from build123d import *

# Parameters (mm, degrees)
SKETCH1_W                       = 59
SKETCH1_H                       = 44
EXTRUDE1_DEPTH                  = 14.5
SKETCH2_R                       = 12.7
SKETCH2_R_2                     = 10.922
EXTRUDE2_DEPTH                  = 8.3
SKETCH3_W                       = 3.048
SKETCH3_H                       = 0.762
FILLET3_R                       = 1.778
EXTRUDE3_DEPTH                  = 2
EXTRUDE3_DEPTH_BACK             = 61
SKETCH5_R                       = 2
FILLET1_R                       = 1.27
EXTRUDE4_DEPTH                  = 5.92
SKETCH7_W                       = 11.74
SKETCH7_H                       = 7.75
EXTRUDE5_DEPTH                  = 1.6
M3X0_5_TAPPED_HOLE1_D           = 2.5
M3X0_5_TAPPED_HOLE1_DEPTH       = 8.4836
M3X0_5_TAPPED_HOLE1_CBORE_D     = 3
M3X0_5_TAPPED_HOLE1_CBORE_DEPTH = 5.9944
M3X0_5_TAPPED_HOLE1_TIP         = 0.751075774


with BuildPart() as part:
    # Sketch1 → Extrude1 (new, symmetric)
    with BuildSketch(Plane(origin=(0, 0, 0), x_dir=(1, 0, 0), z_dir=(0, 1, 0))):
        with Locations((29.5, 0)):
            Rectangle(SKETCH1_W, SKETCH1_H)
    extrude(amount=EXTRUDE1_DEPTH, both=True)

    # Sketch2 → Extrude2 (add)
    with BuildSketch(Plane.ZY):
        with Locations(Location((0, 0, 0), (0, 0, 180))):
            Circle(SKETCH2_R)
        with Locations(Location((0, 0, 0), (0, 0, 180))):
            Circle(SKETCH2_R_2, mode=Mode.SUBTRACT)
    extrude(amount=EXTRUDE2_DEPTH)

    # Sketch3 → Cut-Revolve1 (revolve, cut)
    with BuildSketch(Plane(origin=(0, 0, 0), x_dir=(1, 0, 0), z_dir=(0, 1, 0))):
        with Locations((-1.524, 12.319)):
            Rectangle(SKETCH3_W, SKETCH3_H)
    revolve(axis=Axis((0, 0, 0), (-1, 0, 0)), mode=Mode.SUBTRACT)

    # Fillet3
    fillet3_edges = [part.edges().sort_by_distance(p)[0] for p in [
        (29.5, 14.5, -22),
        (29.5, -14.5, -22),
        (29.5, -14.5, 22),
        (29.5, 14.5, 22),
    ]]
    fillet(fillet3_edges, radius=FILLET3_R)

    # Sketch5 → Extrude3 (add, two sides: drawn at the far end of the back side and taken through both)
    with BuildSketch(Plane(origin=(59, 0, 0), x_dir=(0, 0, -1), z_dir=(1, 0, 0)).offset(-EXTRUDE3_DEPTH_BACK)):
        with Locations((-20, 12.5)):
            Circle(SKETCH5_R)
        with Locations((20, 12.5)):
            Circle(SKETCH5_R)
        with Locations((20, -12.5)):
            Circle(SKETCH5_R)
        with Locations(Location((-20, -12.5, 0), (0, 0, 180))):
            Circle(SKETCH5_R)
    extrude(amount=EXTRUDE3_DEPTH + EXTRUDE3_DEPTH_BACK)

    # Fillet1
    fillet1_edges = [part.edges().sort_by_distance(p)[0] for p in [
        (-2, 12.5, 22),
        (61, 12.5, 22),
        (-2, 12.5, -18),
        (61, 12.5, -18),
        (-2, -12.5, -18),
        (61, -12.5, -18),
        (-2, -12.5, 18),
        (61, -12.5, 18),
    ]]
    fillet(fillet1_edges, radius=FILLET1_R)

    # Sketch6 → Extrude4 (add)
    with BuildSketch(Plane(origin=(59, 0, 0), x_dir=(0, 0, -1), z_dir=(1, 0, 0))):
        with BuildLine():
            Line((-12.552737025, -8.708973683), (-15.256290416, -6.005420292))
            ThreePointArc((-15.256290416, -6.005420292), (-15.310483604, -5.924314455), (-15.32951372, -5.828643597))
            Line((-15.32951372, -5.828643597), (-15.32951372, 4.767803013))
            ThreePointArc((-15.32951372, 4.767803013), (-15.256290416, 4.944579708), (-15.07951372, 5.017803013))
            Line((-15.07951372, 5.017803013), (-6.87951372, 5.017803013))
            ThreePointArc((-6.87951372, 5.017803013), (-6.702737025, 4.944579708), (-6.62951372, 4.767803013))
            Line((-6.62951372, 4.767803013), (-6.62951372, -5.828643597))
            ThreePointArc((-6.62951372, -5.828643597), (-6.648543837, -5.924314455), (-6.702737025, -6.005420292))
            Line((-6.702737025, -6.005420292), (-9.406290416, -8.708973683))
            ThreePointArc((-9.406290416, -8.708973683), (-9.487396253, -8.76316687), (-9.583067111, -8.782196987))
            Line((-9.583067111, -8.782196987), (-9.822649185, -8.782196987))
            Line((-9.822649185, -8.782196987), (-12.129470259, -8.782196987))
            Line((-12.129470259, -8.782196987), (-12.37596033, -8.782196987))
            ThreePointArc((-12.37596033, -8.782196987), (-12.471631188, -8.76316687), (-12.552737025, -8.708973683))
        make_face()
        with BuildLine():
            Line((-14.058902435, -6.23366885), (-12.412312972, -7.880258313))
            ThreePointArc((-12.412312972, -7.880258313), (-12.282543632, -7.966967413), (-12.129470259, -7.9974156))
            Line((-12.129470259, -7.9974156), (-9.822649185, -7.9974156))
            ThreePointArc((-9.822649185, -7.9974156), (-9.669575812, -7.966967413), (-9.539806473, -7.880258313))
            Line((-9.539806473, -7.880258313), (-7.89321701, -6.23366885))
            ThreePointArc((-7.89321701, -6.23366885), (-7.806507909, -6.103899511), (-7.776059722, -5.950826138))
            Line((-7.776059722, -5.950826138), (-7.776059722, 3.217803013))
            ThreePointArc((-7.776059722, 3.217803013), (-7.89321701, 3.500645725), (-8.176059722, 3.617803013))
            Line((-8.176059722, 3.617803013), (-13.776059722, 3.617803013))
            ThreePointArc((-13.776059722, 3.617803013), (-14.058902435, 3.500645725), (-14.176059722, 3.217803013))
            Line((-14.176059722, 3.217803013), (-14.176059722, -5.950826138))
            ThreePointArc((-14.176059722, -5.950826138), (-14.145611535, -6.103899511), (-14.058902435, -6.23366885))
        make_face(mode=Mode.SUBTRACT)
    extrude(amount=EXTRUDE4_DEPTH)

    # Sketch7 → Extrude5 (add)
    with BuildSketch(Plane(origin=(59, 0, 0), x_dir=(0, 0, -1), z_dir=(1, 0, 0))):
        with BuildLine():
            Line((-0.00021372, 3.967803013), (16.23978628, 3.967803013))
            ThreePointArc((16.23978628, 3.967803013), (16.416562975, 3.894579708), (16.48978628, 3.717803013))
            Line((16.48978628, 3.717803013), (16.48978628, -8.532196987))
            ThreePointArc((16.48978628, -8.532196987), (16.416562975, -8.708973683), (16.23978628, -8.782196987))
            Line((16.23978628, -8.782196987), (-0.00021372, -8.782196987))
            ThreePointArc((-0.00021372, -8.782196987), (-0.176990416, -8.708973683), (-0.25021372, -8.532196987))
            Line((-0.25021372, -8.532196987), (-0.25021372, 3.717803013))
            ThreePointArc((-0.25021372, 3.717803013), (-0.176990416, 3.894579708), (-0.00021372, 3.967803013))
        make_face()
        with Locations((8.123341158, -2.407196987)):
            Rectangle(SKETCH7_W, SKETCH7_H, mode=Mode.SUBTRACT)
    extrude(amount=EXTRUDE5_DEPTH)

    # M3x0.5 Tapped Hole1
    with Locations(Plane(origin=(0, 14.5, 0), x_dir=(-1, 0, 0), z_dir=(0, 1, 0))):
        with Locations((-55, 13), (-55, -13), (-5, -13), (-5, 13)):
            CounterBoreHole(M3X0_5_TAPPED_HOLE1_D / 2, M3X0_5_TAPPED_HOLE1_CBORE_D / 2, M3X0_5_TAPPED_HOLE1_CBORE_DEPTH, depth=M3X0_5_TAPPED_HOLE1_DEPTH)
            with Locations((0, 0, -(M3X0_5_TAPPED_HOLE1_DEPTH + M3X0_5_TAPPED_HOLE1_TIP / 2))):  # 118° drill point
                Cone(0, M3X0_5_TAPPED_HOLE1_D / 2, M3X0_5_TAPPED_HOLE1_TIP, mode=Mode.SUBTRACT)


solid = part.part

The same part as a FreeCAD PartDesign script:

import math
import FreeCAD as App
import Part
import Sketcher

V = App.Vector
Q = App.Units.Quantity


def edges_at(feature, points):
    """Names of the edges that pass closest to the given points."""
    edges = feature.Shape.Edges
    near = lambda p: min(range(len(edges)), key=lambda i: edges[i].distToShape(Part.Vertex(*p))[0])
    return sorted({f"Edge{near(p) + 1}" for p in points})

doc = App.newDocument("Part")
body = doc.addObject("PartDesign::Body", "Body")

# Sketch on XZ plane
sketch1 = doc.addObject("Sketcher::SketchObject", "Sketch")
body.addObject(sketch1)
sketch1.AttachmentSupport = (doc.XZ_Plane, [""])
sketch1.MapMode = "FlatFace"
sketch1.addGeometry([
    Part.LineSegment(V(0, -22, 0), V(0, 22, 0)),
    Part.LineSegment(V(0, 22, 0), V(59, 22, 0)),
    Part.LineSegment(V(59, 22, 0), V(59, -22, 0)),
    Part.LineSegment(V(59, -22, 0), V(0, -22, 0)),
], False)
sketch1.addConstraint([
    Sketcher.Constraint("Coincident", 0, 2, 1, 1),
    Sketcher.Constraint("Coincident", 1, 2, 2, 1),
    Sketcher.Constraint("Coincident", 2, 2, 3, 1),
    Sketcher.Constraint("Coincident", 3, 2, 0, 1),
    Sketcher.Constraint("Vertical", 0),
    Sketcher.Constraint("Horizontal", 1),
    Sketcher.Constraint("Vertical", 2),
    Sketcher.Constraint("Horizontal", 3),
    Sketcher.Constraint("Symmetric", 0, 2, 3, 2, -1, 1),
    Sketcher.Constraint("DistanceX", 1, 1, 1, 2, Q("59 mm")),
    Sketcher.Constraint("DistanceY", 0, 1, 0, 2, Q("44 mm")),
])
pad1 = doc.addObject("PartDesign::Pad", "Pad")
body.addObject(pad1)
pad1.Profile = sketch1
pad1.Length = 29
pad1.Midplane = True

# Sketch on YZ plane
sketch2 = doc.addObject("Sketcher::SketchObject", "Sketch001")
body.addObject(sketch2)
sketch2.AttachmentSupport = (doc.YZ_Plane, [""])
sketch2.MapMode = "FlatFace"
sketch2.addGeometry([
    Part.Circle(V(0, 0, 0), V(0, 0, 1), 12.7),
    Part.Circle(V(0, 0, 0), V(0, 0, 1), 10.922),
], False)
sketch2.addConstraint([
    Sketcher.Constraint("Coincident", 0, 3, -1, 1),
    Sketcher.Constraint("Coincident", 1, 3, -1, 1),
    Sketcher.Constraint("Diameter", 0, Q("25.4 mm")),
    Sketcher.Constraint("Diameter", 1, Q("21.844 mm")),
])
pad2 = doc.addObject("PartDesign::Pad", "Pad001")
body.addObject(pad2)
pad2.Profile = sketch2
pad2.Length = 8.3
pad2.Reversed = True

# Sketch on XZ plane
sketch3 = doc.addObject("Sketcher::SketchObject", "Sketch002")
body.addObject(sketch3)
sketch3.AttachmentSupport = (doc.XZ_Plane, [""])
sketch3.MapMode = "FlatFace"
sketch3.addGeometry([
    Part.LineSegment(V(-3.048, -12.7, 0), V(-3.048, -11.938, 0)),
    Part.LineSegment(V(-3.048, -11.938, 0), V(0, -11.938, 0)),
    Part.LineSegment(V(0, -11.938, 0), V(0, -12.7, 0)),
    Part.LineSegment(V(0, -12.7, 0), V(-3.048, -12.7, 0)),
], False)
sketch3.addConstraint([
    Sketcher.Constraint("Coincident", 0, 2, 1, 1),
    Sketcher.Constraint("Coincident", 1, 2, 2, 1),
    Sketcher.Constraint("Coincident", 2, 2, 3, 1),
    Sketcher.Constraint("Coincident", 3, 2, 0, 1),
    Sketcher.Constraint("Vertical", 0),
    Sketcher.Constraint("Horizontal", 1),
    Sketcher.Constraint("Vertical", 2),
    Sketcher.Constraint("Horizontal", 3),
    Sketcher.Constraint("PointOnObject", 1, 2, -2),
    Sketcher.Constraint("DistanceY", 2, 2, -1, 1, Q("12.7 mm")),
    Sketcher.Constraint("DistanceX", 1, 1, 1, 2, Q("3.048 mm")),
    Sketcher.Constraint("DistanceY", 0, 1, 0, 2, Q("0.762 mm")),
])
groove = doc.addObject("PartDesign::Groove", "Groove")
body.addObject(groove)
groove.Profile = sketch3
groove.ReferenceAxis = (sketch3, ["H_Axis"])
groove.Angle = 360
doc.recompute()

fillet = doc.addObject("PartDesign::Fillet", "Fillet")
body.addObject(fillet)
fillet.Base = (groove, edges_at(groove, [
    (29.5, 14.5, -22),
    (29.5, -14.5, -22),
    (29.5, -14.5, 22),
    (29.5, 14.5, 22),
]))
fillet.Radius = 1.778

# Sketch on YZ plane
sketch4 = doc.addObject("Sketcher::SketchObject", "Sketch003")
body.addObject(sketch4)
sketch4.AttachmentSupport = (doc.YZ_Plane, [""])
sketch4.MapMode = "FlatFace"
sketch4.AttachmentOffset = App.Placement(V(0, 0, 59), App.Rotation())
sketch4.addGeometry([
    Part.Circle(V(12.5, 20, 0), V(0, 0, 1), 2),
    Part.Circle(V(12.5, -20, 0), V(0, 0, 1), 2),
    Part.Circle(V(-12.5, -20, 0), V(0, 0, 1), 2),
    Part.Circle(V(-12.5, 20, 0), V(0, 0, 1), 2),
], False)
sketch4.addConstraint([
    Sketcher.Constraint("Equal", 0, 1),
    Sketcher.Constraint("Equal", 1, 2),
    Sketcher.Constraint("Equal", 2, 3),
    Sketcher.Constraint("Symmetric", 0, 3, 2, 3, -1, 1),
    Sketcher.Constraint("Symmetric", 1, 3, 3, 3, -1, 1),
    Sketcher.Constraint("Symmetric", 1, 3, 2, 3, -2),
    Sketcher.Constraint("Diameter", 0, Q("4 mm")),
    Sketcher.Constraint("DistanceY", -1, 1, 0, 3, Q("20 mm")),
    Sketcher.Constraint("DistanceX", 2, 3, 1, 3, Q("25 mm")),
])
pad3 = doc.addObject("PartDesign::Pad", "Pad002")
body.addObject(pad3)
pad3.Profile = sketch4
pad3.Type = "TwoLengths"
pad3.Length = 2
pad3.Length2 = 61
doc.recompute()

fillet2 = doc.addObject("PartDesign::Fillet", "Fillet001")
body.addObject(fillet2)
fillet2.Base = (pad3, edges_at(pad3, [
    (-2, 12.5, 22),
    (61, 12.5, 22),
    (-2, 12.5, -18),
    (61, 12.5, -18),
    (-2, -12.5, -18),
    (61, -12.5, -18),
    (-2, -12.5, 18),
    (61, -12.5, 18),
]))
fillet2.Radius = 1.27

# Sketch on YZ plane
sketch5 = doc.addObject("Sketcher::SketchObject", "Sketch004")
body.addObject(sketch5)
sketch5.AttachmentSupport = (doc.YZ_Plane, [""])
sketch5.MapMode = "FlatFace"
sketch5.AttachmentOffset = App.Placement(V(0, 0, 59), App.Rotation())
sketch5.addGeometry([
    Part.LineSegment(V(-6.00542, 15.25629, 0), V(-8.708974, 12.552737, 0)),  # 0
    Part.ArcOfCircle(Part.Circle(V(-8.532197, 12.37596, 0), V(0, 0, 1), 0.25), math.radians(135.000001), math.radians(180)),  # 1
    Part.LineSegment(V(-8.782197, 12.37596, 0), V(-8.782197, 9.583067, 0)),  # 2
    Part.ArcOfCircle(Part.Circle(V(-8.532197, 9.583067, 0), V(0, 0, 1), 0.25), math.radians(-180), math.radians(-135.000001)),  # 3
    Part.LineSegment(V(-8.708974, 9.40629, 0), V(-6.00542, 6.702737, 0)),  # 4
    Part.ArcOfCircle(Part.Circle(V(-5.828644, 6.879514, 0), V(0, 0, 1), 0.25), math.radians(-135), math.radians(-90)),  # 5
    Part.LineSegment(V(-5.828644, 6.629514, 0), V(4.767803, 6.629514, 0)),  # 6
    Part.ArcOfCircle(Part.Circle(V(4.767803, 6.879514, 0), V(0, 0, 1), 0.25), math.radians(-90), math.radians(0)),  # 7
    Part.LineSegment(V(5.017803, 6.879514, 0), V(5.017803, 15.079514, 0)),  # 8
    Part.ArcOfCircle(Part.Circle(V(4.767803, 15.079514, 0), V(0, 0, 1), 0.25), math.radians(0), math.radians(90)),  # 9
    Part.LineSegment(V(4.767803, 15.329514, 0), V(-5.828644, 15.329514, 0)),  # 10
    Part.ArcOfCircle(Part.Circle(V(-5.828644, 15.079514, 0), V(0, 0, 1), 0.25), math.radians(89.999999), math.radians(135)),  # 11
    Part.ArcOfCircle(Part.Circle(V(-5.950826, 13.77606, 0), V(0, 0, 1), 0.4), math.radians(90), math.radians(135)),  # 12
    Part.LineSegment(V(-5.950826, 14.17606, 0), V(3.217803, 14.17606, 0)),  # 13
    Part.ArcOfCircle(Part.Circle(V(3.217803, 13.77606, 0), V(0, 0, 1), 0.4), math.radians(0), math.radians(90)),  # 14
    Part.LineSegment(V(3.617803, 13.77606, 0), V(3.617803, 8.17606, 0)),  # 15
    Part.ArcOfCircle(Part.Circle(V(3.217803, 8.17606, 0), V(0, 0, 1), 0.4), math.radians(-90), math.radians(0)),  # 16
    Part.LineSegment(V(3.217803, 7.77606, 0), V(-5.950826, 7.77606, 0)),  # 17
    Part.ArcOfCircle(Part.Circle(V(-5.950826, 8.17606, 0), V(0, 0, 1), 0.4), math.radians(-135), math.radians(-90)),  # 18
    Part.LineSegment(V(-6.233669, 7.893217, 0), V(-7.880258, 9.539806, 0)),  # 19
    Part.ArcOfCircle(Part.Circle(V(-7.597416, 9.822649, 0), V(0, 0, 1), 0.4), math.radians(180), math.radians(225)),  # 20
    Part.LineSegment(V(-7.997416, 9.822649, 0), V(-7.997416, 12.12947, 0)),  # 21
    Part.ArcOfCircle(Part.Circle(V(-7.597416, 12.12947, 0), V(0, 0, 1), 0.4), math.radians(135), math.radians(180)),  # 22
    Part.LineSegment(V(-7.880258, 12.412313, 0), V(-6.233669, 14.058902, 0)),  # 23
], False)
sketch5.addConstraint([
    Sketcher.Constraint("Tangent", 0, 2, 1, 1),
    Sketcher.Constraint("Tangent", 1, 2, 2, 1),
    Sketcher.Constraint("Tangent", 2, 2, 3, 1),
    Sketcher.Constraint("Tangent", 3, 2, 4, 1),
    Sketcher.Constraint("Tangent", 4, 2, 5, 1),
    Sketcher.Constraint("Tangent", 5, 2, 6, 1),
    Sketcher.Constraint("Tangent", 6, 2, 7, 1),
    Sketcher.Constraint("Tangent", 7, 2, 8, 1),
    Sketcher.Constraint("Tangent", 8, 2, 9, 1),
    Sketcher.Constraint("Tangent", 9, 2, 10, 1),
    Sketcher.Constraint("Tangent", 10, 2, 11, 1),
    Sketcher.Constraint("Tangent", 11, 2, 0, 1),
    Sketcher.Constraint("Tangent", 12, 1, 13, 1),
    Sketcher.Constraint("Tangent", 13, 2, 14, 2),
    Sketcher.Constraint("Tangent", 14, 1, 15, 1),
    Sketcher.Constraint("Tangent", 15, 2, 16, 2),
    Sketcher.Constraint("Tangent", 16, 1, 17, 1),
    Sketcher.Constraint("Tangent", 17, 2, 18, 2),
    Sketcher.Constraint("Tangent", 18, 1, 19, 1),
    Sketcher.Constraint("Tangent", 19, 2, 20, 2),
    Sketcher.Constraint("Tangent", 20, 1, 21, 1),
    Sketcher.Constraint("Tangent", 21, 2, 22, 2),
    Sketcher.Constraint("Tangent", 22, 1, 23, 1),
    Sketcher.Constraint("Tangent", 23, 2, 12, 2),
    Sketcher.Constraint("Vertical", 2),
    Sketcher.Constraint("Horizontal", 6),
    Sketcher.Constraint("Vertical", 8),
    Sketcher.Constraint("Horizontal", 10),
    Sketcher.Constraint("Horizontal", 13),
    Sketcher.Constraint("Vertical", 15),
    Sketcher.Constraint("Horizontal", 17),
    Sketcher.Constraint("Vertical", 21),
    Sketcher.Constraint("Equal", 1, 3),
    Sketcher.Constraint("Equal", 3, 5),
    Sketcher.Constraint("Equal", 5, 7),
    Sketcher.Constraint("Equal", 7, 9),
    Sketcher.Constraint("Equal", 9, 11),
    Sketcher.Constraint("Equal", 12, 14),
    Sketcher.Constraint("Equal", 14, 16),
    Sketcher.Constraint("Equal", 16, 18),
    Sketcher.Constraint("Equal", 18, 20),
    Sketcher.Constraint("Equal", 20, 22),
    Sketcher.Constraint("Perpendicular", 0, 4),
    Sketcher.Constraint("Parallel", 4, 19),
    Sketcher.Constraint("Perpendicular", 19, 23),
    Sketcher.Constraint("Vertical", 5, 3, 11, 3),
    Sketcher.Constraint("Vertical", 12, 3, 18, 3),
    Sketcher.Constraint("Vertical", 0, 2, 3, 2),
    Sketcher.Constraint("Radius", 12, Q("0.4 mm")),
    Sketcher.Constraint("Radius", 1, Q("0.25 mm")),
    Sketcher.Constraint("DistanceY", 8, 1, 8, 2, Q("8.2 mm")),
    Sketcher.Constraint("DistanceY", 15, 2, 15, 1, Q("5.6 mm")),
    Sketcher.Constraint("DistanceX", 3, 3, 7, 3, Q("13.3 mm")),
    Sketcher.Constraint("DistanceX", 16, 3, 7, 2, Q("1.8 mm")),
    Sketcher.Constraint("Distance", 0, Q("3.823402 mm")),
    Sketcher.Constraint("DistanceX", 13, 1, 13, 2, Q("9.168629 mm")),
    Sketcher.Constraint("DistanceY", 21, 1, 21, 2, Q("2.306821 mm")),
    Sketcher.Constraint("DistanceY", 1, 3, 12, 3, Q("1.400099 mm")),
    Sketcher.Constraint("DistanceY", -1, 1, 1, 3, Q("12.37596 mm")),
    Sketcher.Constraint("DistanceX", 4, 2, -1, 1, Q("6.00542 mm")),
])
pad4 = doc.addObject("PartDesign::Pad", "Pad003")
body.addObject(pad4)
pad4.Profile = sketch5
pad4.Length = 5.92

# Sketch on YZ plane
sketch6 = doc.addObject("Sketcher::SketchObject", "Sketch005")
body.addObject(sketch6)
sketch6.AttachmentSupport = (doc.YZ_Plane, [""])
sketch6.MapMode = "FlatFace"
sketch6.AttachmentOffset = App.Placement(V(0, 0, 59), App.Rotation())
sketch6.addGeometry([
    Part.LineSegment(V(3.967803, -16.239786, 0), V(3.967803, 0.000214, 0)),  # 0
    Part.ArcOfCircle(Part.Circle(V(3.717803, 0.000214, 0), V(0, 0, 1), 0.25), math.radians(0), math.radians(90)),  # 1
    Part.LineSegment(V(3.717803, 0.250214, 0), V(-8.532197, 0.250214, 0)),  # 2
    Part.ArcOfCircle(Part.Circle(V(-8.532197, 0.000214, 0), V(0, 0, 1), 0.25), math.radians(90), math.radians(180)),  # 3
    Part.LineSegment(V(-8.782197, 0.000214, 0), V(-8.782197, -16.239786, 0)),  # 4
    Part.ArcOfCircle(Part.Circle(V(-8.532197, -16.239786, 0), V(0, 0, 1), 0.25), math.radians(180), math.radians(270)),  # 5
    Part.LineSegment(V(-8.532197, -16.489786, 0), V(3.717803, -16.489786, 0)),  # 6
    Part.ArcOfCircle(Part.Circle(V(3.717803, -16.239786, 0), V(0, 0, 1), 0.25), math.radians(-90), math.radians(0)),  # 7
    Part.LineSegment(V(-6.282197, -2.253341, 0), V(1.467803, -2.253341, 0)),  # 8
    Part.LineSegment(V(1.467803, -2.253341, 0), V(1.467803, -13.993341, 0)),  # 9
    Part.LineSegment(V(1.467803, -13.993341, 0), V(-6.282197, -13.993341, 0)),  # 10
    Part.LineSegment(V(-6.282197, -13.993341, 0), V(-6.282197, -2.253341, 0)),  # 11
], False)
sketch6.addConstraint([
    Sketcher.Constraint("Tangent", 0, 2, 1, 1),
    Sketcher.Constraint("Tangent", 1, 2, 2, 1),
    Sketcher.Constraint("Tangent", 2, 2, 3, 1),
    Sketcher.Constraint("Tangent", 3, 2, 4, 1),
    Sketcher.Constraint("Tangent", 4, 2, 5, 1),
    Sketcher.Constraint("Tangent", 5, 2, 6, 1),
    Sketcher.Constraint("Tangent", 6, 2, 7, 1),
    Sketcher.Constraint("Tangent", 7, 2, 0, 1),
    Sketcher.Constraint("Coincident", 8, 2, 9, 1),
    Sketcher.Constraint("Coincident", 9, 2, 10, 1),
    Sketcher.Constraint("Coincident", 10, 2, 11, 1),
    Sketcher.Constraint("Coincident", 11, 2, 8, 1),
    Sketcher.Constraint("Vertical", 0),
    Sketcher.Constraint("Horizontal", 2),
    Sketcher.Constraint("Vertical", 4),
    Sketcher.Constraint("Horizontal", 6),
    Sketcher.Constraint("Horizontal", 8),
    Sketcher.Constraint("Vertical", 9),
    Sketcher.Constraint("Horizontal", 10),
    Sketcher.Constraint("Vertical", 11),
    Sketcher.Constraint("Equal", 1, 3),
    Sketcher.Constraint("Equal", 3, 5),
    Sketcher.Constraint("Equal", 5, 7),
    Sketcher.Constraint("Radius", 1, Q("0.25 mm")),
    Sketcher.Constraint("DistanceX", 3, 3, 8, 2, Q("10 mm")),
    Sketcher.Constraint("DistanceX", 10, 2, 7, 3, Q("10 mm")),
    Sketcher.Constraint("DistanceX", 2, 2, 2, 1, Q("12.25 mm")),
    Sketcher.Constraint("DistanceY", 0, 1, 0, 2, Q("16.24 mm")),
    Sketcher.Constraint("DistanceY", 9, 2, 9, 1, Q("11.74 mm")),
    Sketcher.Constraint("DistanceY", 8, 2, -1, 1, Q("2.253341 mm")),
    Sketcher.Constraint("DistanceX", -1, 1, 1, 3, Q("3.717803 mm")),
    Sketcher.Constraint("DistanceY", -1, 1, 1, 3, Q("0.000214 mm")),
])
pad5 = doc.addObject("PartDesign::Pad", "Pad004")
body.addObject(pad5)
pad5.Profile = sketch6
pad5.Length = 1.6

# Sketch on XZ plane
sketch7 = doc.addObject("Sketcher::SketchObject", "Sketch006")
body.addObject(sketch7)
sketch7.AttachmentSupport = (doc.XZ_Plane, [""])
sketch7.MapMode = "FlatFace"
sketch7.AttachmentOffset = App.Placement(V(0, 0, -14.5), App.Rotation())
sketch7.addGeometry([
    Part.Circle(V(55, 13, 0), V(0, 0, 1), 1.25),
    Part.Circle(V(55, -13, 0), V(0, 0, 1), 1.25),
    Part.Circle(V(5, -13, 0), V(0, 0, 1), 1.25),
    Part.Circle(V(5, 13, 0), V(0, 0, 1), 1.25),
], False)
sketch7.addConstraint([
    Sketcher.Constraint("Equal", 0, 1),
    Sketcher.Constraint("Equal", 1, 2),
    Sketcher.Constraint("Equal", 2, 3),
    Sketcher.Constraint("Symmetric", 0, 3, 1, 3, -1),
    Sketcher.Constraint("Symmetric", 2, 3, 3, 3, -1),
    Sketcher.Constraint("Horizontal", 1, 3, 2, 3),
    Sketcher.Constraint("Diameter", 0, Q("2.5 mm")),
    Sketcher.Constraint("DistanceX", -1, 1, 0, 3, Q("55 mm")),
    Sketcher.Constraint("DistanceY", -1, 1, 0, 3, Q("13 mm")),
    Sketcher.Constraint("DistanceX", -1, 1, 2, 3, Q("5 mm")),
])
doc.recompute()
hole = doc.addObject("PartDesign::Hole", "Hole")
body.addObject(hole)
hole.Profile = sketch7
hole.ThreadType = "None"
hole.Diameter = 2.5
hole.DepthType = "Dimension"
hole.Depth = 8.4836
hole.DrillPoint = "Angled"
hole.DrillPointAngle = 118
hole.HoleCutType = "Counterbore"
hole.HoleCutDiameter = 3
hole.HoleCutDepth = 5.9944
hole.Reversed = True

doc.recompute()
